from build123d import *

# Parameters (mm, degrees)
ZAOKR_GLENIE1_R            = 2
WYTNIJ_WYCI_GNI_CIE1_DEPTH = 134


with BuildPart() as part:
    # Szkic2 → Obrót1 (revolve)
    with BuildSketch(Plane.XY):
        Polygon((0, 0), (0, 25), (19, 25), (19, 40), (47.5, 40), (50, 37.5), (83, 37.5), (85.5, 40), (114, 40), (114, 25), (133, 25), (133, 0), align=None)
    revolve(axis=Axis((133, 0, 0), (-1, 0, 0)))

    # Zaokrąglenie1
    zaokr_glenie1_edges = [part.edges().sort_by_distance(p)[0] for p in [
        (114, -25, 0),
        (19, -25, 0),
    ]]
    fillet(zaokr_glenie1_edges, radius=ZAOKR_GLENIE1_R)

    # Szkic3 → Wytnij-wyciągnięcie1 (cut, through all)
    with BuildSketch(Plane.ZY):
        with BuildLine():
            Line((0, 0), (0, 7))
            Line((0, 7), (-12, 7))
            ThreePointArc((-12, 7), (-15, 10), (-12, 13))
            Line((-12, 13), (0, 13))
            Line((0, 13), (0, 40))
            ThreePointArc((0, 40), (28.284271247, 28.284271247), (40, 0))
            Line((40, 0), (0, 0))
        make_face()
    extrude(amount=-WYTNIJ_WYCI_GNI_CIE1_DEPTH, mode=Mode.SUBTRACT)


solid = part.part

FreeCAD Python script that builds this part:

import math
import FreeCAD as App
import Part
import Sketcher
from FreeCAD import Vector


def edges_at(feature, points):
    """Names of the edges that pass closest to the given points."""
    edges = feature.Shape.Edges
    near = lambda p: min(range(len(edges)), key=lambda i: edges[i].distToShape(Part.Vertex(*p))[0])
    return sorted({f"Edge{near(p) + 1}" for p in points})


def add_polygon(sketch, points):
    """Adds a closed chain of lines whose ends are joined by coincident constraints."""
    first, n = sketch.GeometryCount, len(points)
    for a, b in zip(points, points[1:] + points[:1]):
        sketch.addGeometry(Part.LineSegment(App.Vector(*a, 0), App.Vector(*b, 0)), False)
    for i in range(n):
        sketch.addConstraint(Sketcher.Constraint("Coincident", first + i, 2, first + (i + 1) % n, 1))

doc = App.newDocument("Part")
body = doc.addObject("PartDesign::Body", "Body")

# Sketch on XY plane
sketch1 = body.newObject("Sketcher::SketchObject", "Sketch")
sketch1.AttachmentSupport = (doc.getObject("XY_Plane"), [""])
sketch1.MapMode = "FlatFace"
add_polygon(sketch1, [(0, 25), (0, 0), (133, 0), (133, 25), (114, 25), (114, 40), (85.5, 40), (83, 37.5), (50, 37.5), (47.5, 40), (19, 40), (19, 25)])  # lines 0-11
sketch1.addConstraint([
    Sketcher.Constraint("Vertical", 0),
    Sketcher.Constraint("Horizontal", 1),
    Sketcher.Constraint("Vertical", 2),
    Sketcher.Constraint("Horizontal", 3),
    Sketcher.Constraint("Vertical", 4),
    Sketcher.Constraint("Horizontal", 5),
    Sketcher.Constraint("Horizontal", 7),
    Sketcher.Constraint("Horizontal", 9),
    Sketcher.Constraint("Vertical", 10),
    Sketcher.Constraint("Horizontal", 11),
    Sketcher.Constraint("Coincident", 0, 2, -1, 1),
    Sketcher.Constraint("Perpendicular", 6, 8),
    Sketcher.Constraint("Horizontal", 5, 2, 8, 2),
    Sketcher.Constraint("Horizontal", 3, 2, 10, 2),
    Sketcher.Constraint("Equal", 5, 9),
    Sketcher.Constraint("Equal", 3, 11),
    Sketcher.Constraint("Equal", 6, 8),
    Sketcher.Constraint("DistanceX", 1, 1, 1, 2, 133.0),
    Sketcher.Constraint("DistanceX", 3, 2, 3, 1, 19.0),
    Sketcher.Constraint("DistanceX", 7, 2, 7, 1, 33.0),
    Sketcher.Constraint("DistanceY", 0, 2, 0, 1, 25.0),
    Sketcher.Constraint("DistanceY", 4, 1, 4, 2, 15.0),
    Sketcher.Constraint("DistanceX", 5, 2, 5, 1, 28.5),
])
revolution = body.newObject("PartDesign::Revolution", "Revolution")
revolution.Profile = sketch1
revolution.ReferenceAxis = (sketch1, ["H_Axis"])
revolution.Angle = 360
doc.recompute()

fillet = body.newObject("PartDesign::Fillet", "Fillet")
fillet.Base = (revolution, edges_at(revolution, [(114, -25, 0), (19, -25, 0)]))
fillet.Radius = 2

# Sketch on YZ plane
sketch2 = body.newObject("Sketcher::SketchObject", "Sketch001")
sketch2.AttachmentSupport = (doc.getObject("YZ_Plane"), [""])
sketch2.MapMode = "FlatFace"
sketch2.addGeometry([
    Part.LineSegment(Vector(7, 0, 0), Vector(0, 0, 0)),  # 0
    Part.LineSegment(Vector(0, 0, 0), Vector(0, 40, 0)),  # 1
    Part.ArcOfCircle(Part.Circle(Vector(0, 0, 0), Vector(0, 0, 1), 40), math.radians(0), math.radians(90)),  # 2
    Part.LineSegment(Vector(40, 0, 0), Vector(13, 0, 0)),  # 3
    Part.LineSegment(Vector(13, 0, 0), Vector(13, -12, 0)),  # 4
    Part.ArcOfCircle(Part.Circle(Vector(10, -12, 0), Vector(0, 0, 1), 3), math.radians(180), math.radians(360)),  # 5
    Part.LineSegment(Vector(7, -12, 0), Vector(7, 0, 0)),  # 6
], False)
sketch2.addConstraint([
    Sketcher.Constraint("Coincident", 0, 2, 1, 1),
    Sketcher.Constraint("Coincident", 1, 2, 2, 2),
    Sketcher.Constraint("Coincident", 2, 1, 3, 1),
    Sketcher.Constraint("Coincident", 3, 2, 4, 1),
    Sketcher.Constraint("Tangent", 4, 2, 5, 2),
    Sketcher.Constraint("Tangent", 5, 1, 6, 1),
    Sketcher.Constraint("Coincident", 6, 2, 0, 1),
    Sketcher.Constraint("Horizontal", 0),
    Sketcher.Constraint("Vertical", 1),
    Sketcher.Constraint("Horizontal", 3),
    Sketcher.Constraint("Vertical", 4),
    Sketcher.Constraint("Vertical", 6),
    Sketcher.Constraint("Coincident", 2, 3, -1, 1),
    Sketcher.Constraint("Coincident", 0, 2, -1, 1),
    Sketcher.Constraint("PointOnObject", 2, 1, -1),
    Sketcher.Constraint("Radius", 2, 40.0),
    Sketcher.Constraint("Radius", 5, 3.0),
    Sketcher.Constraint("DistanceX", 0, 2, 0, 1, 7.0),
    Sketcher.Constraint("DistanceY", 4, 2, 4, 1, 12.0),
])
pocket1 = body.newObject("PartDesign::Pocket", "Pocket")
pocket1.Profile = sketch2
pocket1.Type = "ThroughAll"
pocket1.Reversed = True

doc.recompute()
